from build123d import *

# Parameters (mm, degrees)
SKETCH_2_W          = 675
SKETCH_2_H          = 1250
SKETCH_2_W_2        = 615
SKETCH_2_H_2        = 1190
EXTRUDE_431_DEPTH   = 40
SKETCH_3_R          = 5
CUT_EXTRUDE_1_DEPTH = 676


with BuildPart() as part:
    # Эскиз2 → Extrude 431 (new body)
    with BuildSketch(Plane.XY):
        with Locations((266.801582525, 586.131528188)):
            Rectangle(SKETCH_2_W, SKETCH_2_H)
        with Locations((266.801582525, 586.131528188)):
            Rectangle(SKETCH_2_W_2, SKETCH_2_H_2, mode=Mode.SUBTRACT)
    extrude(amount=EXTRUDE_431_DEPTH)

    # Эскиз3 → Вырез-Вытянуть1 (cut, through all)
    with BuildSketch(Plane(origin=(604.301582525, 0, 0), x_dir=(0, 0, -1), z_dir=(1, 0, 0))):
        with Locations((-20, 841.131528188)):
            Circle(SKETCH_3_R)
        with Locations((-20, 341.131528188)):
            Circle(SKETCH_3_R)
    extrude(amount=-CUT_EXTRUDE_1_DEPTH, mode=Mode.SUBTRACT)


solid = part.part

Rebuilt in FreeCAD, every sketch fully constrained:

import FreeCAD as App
import Part
import Sketcher
from FreeCAD import Vector


def add_polygon(sketch, points):
    """Adds a closed chain of lines whose ends are joined by coincident constraints."""
    first, n = sketch.GeometryCount, len(points)
    for a, b in zip(points, points[1:] + points[:1]):
        sketch.addGeometry(Part.LineSegment(App.Vector(*a, 0), App.Vector(*b, 0)), False)
    for i in range(n):
        sketch.addConstraint(Sketcher.Constraint("Coincident", first + i, 2, first + (i + 1) % n, 1))

doc = App.newDocument("Part")
body = doc.addObject("PartDesign::Body", "Body")

sketch1 = body.newObject("Sketcher::SketchObject", "Sketch")
sketch1.AttachmentSupport = (doc.getObject("XY_Plane"), [""])
sketch1.MapMode = "FlatFace"
add_polygon(sketch1, [(-70.698417, 1211.131528), (-70.698417, -38.868472), (604.301583, -38.868472), (604.301583, 1211.131528)])
add_polygon(sketch1, [(574.301583, -8.868472), (-40.698417, -8.868472), (-40.698417, 1181.131528), (574.301583, 1181.131528)])
sketch1.addConstraint([
    Sketcher.Constraint("Vertical", 0),
    Sketcher.Constraint("Horizontal", 1),
    Sketcher.Constraint("Vertical", 2),
    Sketcher.Constraint("Horizontal", 3),
    Sketcher.Constraint("Horizontal", 4),
    Sketcher.Constraint("Vertical", 5),
    Sketcher.Constraint("Horizontal", 6),
    Sketcher.Constraint("Vertical", 7),
    Sketcher.Constraint("DistanceX", 1, 1, 1, 2, 675.0),
    Sketcher.Constraint("DistanceX", 4, 2, 4, 1, 615.0),
    Sketcher.Constraint("DistanceY", 0, 2, 0, 1, 1250.0),
    Sketcher.Constraint("DistanceY", 5, 1, 5, 2, 1190.0),
    Sketcher.Constraint("DistanceX", 0, 2, 4, 2, 30.0),
    Sketcher.Constraint("DistanceY", 0, 2, 4, 2, 30.0),
    Sketcher.Constraint("DistanceY", 0, 2, -1, 1, 38.868472),
    Sketcher.Constraint("DistanceX", 0, 2, -1, 1, 70.698417),
])
pad1 = body.newObject("PartDesign::Pad", "Pad")
pad1.Profile = sketch1
pad1.Length = 40

sketch2 = body.newObject("Sketcher::SketchObject", "Sketch001")
sketch2.AttachmentSupport = (doc.getObject("YZ_Plane"), [""])
sketch2.MapMode = "FlatFace"
sketch2.AttachmentOffset = App.Placement(Vector(0, 0, 604.301583), App.Rotation())
sketch2.addGeometry([
    Part.Circle(Vector(841.131528, 20, 0), Vector(0, 0, 1), 5),
    Part.Circle(Vector(341.131528, 20, 0), Vector(0, 0, 1), 5),
], False)
sketch2.addConstraint([
    Sketcher.Constraint("Equal", 0, 1),
    Sketcher.Constraint("Horizontal", 0, 3, 1, 3),
    Sketcher.Constraint("Diameter", 0, 10.0),
    Sketcher.Constraint("DistanceY", -1, 1, 0, 3, 20.0),
    Sketcher.Constraint("DistanceX", 1, 3, 0, 3, 500.0),
    Sketcher.Constraint("DistanceX", -1, 1, 0, 3, 841.131528),
])
pocket1 = body.newObject("PartDesign::Pocket", "Pocket")
pocket1.Profile = sketch2
pocket1.Type = "ThroughAll"

doc.recompute()
